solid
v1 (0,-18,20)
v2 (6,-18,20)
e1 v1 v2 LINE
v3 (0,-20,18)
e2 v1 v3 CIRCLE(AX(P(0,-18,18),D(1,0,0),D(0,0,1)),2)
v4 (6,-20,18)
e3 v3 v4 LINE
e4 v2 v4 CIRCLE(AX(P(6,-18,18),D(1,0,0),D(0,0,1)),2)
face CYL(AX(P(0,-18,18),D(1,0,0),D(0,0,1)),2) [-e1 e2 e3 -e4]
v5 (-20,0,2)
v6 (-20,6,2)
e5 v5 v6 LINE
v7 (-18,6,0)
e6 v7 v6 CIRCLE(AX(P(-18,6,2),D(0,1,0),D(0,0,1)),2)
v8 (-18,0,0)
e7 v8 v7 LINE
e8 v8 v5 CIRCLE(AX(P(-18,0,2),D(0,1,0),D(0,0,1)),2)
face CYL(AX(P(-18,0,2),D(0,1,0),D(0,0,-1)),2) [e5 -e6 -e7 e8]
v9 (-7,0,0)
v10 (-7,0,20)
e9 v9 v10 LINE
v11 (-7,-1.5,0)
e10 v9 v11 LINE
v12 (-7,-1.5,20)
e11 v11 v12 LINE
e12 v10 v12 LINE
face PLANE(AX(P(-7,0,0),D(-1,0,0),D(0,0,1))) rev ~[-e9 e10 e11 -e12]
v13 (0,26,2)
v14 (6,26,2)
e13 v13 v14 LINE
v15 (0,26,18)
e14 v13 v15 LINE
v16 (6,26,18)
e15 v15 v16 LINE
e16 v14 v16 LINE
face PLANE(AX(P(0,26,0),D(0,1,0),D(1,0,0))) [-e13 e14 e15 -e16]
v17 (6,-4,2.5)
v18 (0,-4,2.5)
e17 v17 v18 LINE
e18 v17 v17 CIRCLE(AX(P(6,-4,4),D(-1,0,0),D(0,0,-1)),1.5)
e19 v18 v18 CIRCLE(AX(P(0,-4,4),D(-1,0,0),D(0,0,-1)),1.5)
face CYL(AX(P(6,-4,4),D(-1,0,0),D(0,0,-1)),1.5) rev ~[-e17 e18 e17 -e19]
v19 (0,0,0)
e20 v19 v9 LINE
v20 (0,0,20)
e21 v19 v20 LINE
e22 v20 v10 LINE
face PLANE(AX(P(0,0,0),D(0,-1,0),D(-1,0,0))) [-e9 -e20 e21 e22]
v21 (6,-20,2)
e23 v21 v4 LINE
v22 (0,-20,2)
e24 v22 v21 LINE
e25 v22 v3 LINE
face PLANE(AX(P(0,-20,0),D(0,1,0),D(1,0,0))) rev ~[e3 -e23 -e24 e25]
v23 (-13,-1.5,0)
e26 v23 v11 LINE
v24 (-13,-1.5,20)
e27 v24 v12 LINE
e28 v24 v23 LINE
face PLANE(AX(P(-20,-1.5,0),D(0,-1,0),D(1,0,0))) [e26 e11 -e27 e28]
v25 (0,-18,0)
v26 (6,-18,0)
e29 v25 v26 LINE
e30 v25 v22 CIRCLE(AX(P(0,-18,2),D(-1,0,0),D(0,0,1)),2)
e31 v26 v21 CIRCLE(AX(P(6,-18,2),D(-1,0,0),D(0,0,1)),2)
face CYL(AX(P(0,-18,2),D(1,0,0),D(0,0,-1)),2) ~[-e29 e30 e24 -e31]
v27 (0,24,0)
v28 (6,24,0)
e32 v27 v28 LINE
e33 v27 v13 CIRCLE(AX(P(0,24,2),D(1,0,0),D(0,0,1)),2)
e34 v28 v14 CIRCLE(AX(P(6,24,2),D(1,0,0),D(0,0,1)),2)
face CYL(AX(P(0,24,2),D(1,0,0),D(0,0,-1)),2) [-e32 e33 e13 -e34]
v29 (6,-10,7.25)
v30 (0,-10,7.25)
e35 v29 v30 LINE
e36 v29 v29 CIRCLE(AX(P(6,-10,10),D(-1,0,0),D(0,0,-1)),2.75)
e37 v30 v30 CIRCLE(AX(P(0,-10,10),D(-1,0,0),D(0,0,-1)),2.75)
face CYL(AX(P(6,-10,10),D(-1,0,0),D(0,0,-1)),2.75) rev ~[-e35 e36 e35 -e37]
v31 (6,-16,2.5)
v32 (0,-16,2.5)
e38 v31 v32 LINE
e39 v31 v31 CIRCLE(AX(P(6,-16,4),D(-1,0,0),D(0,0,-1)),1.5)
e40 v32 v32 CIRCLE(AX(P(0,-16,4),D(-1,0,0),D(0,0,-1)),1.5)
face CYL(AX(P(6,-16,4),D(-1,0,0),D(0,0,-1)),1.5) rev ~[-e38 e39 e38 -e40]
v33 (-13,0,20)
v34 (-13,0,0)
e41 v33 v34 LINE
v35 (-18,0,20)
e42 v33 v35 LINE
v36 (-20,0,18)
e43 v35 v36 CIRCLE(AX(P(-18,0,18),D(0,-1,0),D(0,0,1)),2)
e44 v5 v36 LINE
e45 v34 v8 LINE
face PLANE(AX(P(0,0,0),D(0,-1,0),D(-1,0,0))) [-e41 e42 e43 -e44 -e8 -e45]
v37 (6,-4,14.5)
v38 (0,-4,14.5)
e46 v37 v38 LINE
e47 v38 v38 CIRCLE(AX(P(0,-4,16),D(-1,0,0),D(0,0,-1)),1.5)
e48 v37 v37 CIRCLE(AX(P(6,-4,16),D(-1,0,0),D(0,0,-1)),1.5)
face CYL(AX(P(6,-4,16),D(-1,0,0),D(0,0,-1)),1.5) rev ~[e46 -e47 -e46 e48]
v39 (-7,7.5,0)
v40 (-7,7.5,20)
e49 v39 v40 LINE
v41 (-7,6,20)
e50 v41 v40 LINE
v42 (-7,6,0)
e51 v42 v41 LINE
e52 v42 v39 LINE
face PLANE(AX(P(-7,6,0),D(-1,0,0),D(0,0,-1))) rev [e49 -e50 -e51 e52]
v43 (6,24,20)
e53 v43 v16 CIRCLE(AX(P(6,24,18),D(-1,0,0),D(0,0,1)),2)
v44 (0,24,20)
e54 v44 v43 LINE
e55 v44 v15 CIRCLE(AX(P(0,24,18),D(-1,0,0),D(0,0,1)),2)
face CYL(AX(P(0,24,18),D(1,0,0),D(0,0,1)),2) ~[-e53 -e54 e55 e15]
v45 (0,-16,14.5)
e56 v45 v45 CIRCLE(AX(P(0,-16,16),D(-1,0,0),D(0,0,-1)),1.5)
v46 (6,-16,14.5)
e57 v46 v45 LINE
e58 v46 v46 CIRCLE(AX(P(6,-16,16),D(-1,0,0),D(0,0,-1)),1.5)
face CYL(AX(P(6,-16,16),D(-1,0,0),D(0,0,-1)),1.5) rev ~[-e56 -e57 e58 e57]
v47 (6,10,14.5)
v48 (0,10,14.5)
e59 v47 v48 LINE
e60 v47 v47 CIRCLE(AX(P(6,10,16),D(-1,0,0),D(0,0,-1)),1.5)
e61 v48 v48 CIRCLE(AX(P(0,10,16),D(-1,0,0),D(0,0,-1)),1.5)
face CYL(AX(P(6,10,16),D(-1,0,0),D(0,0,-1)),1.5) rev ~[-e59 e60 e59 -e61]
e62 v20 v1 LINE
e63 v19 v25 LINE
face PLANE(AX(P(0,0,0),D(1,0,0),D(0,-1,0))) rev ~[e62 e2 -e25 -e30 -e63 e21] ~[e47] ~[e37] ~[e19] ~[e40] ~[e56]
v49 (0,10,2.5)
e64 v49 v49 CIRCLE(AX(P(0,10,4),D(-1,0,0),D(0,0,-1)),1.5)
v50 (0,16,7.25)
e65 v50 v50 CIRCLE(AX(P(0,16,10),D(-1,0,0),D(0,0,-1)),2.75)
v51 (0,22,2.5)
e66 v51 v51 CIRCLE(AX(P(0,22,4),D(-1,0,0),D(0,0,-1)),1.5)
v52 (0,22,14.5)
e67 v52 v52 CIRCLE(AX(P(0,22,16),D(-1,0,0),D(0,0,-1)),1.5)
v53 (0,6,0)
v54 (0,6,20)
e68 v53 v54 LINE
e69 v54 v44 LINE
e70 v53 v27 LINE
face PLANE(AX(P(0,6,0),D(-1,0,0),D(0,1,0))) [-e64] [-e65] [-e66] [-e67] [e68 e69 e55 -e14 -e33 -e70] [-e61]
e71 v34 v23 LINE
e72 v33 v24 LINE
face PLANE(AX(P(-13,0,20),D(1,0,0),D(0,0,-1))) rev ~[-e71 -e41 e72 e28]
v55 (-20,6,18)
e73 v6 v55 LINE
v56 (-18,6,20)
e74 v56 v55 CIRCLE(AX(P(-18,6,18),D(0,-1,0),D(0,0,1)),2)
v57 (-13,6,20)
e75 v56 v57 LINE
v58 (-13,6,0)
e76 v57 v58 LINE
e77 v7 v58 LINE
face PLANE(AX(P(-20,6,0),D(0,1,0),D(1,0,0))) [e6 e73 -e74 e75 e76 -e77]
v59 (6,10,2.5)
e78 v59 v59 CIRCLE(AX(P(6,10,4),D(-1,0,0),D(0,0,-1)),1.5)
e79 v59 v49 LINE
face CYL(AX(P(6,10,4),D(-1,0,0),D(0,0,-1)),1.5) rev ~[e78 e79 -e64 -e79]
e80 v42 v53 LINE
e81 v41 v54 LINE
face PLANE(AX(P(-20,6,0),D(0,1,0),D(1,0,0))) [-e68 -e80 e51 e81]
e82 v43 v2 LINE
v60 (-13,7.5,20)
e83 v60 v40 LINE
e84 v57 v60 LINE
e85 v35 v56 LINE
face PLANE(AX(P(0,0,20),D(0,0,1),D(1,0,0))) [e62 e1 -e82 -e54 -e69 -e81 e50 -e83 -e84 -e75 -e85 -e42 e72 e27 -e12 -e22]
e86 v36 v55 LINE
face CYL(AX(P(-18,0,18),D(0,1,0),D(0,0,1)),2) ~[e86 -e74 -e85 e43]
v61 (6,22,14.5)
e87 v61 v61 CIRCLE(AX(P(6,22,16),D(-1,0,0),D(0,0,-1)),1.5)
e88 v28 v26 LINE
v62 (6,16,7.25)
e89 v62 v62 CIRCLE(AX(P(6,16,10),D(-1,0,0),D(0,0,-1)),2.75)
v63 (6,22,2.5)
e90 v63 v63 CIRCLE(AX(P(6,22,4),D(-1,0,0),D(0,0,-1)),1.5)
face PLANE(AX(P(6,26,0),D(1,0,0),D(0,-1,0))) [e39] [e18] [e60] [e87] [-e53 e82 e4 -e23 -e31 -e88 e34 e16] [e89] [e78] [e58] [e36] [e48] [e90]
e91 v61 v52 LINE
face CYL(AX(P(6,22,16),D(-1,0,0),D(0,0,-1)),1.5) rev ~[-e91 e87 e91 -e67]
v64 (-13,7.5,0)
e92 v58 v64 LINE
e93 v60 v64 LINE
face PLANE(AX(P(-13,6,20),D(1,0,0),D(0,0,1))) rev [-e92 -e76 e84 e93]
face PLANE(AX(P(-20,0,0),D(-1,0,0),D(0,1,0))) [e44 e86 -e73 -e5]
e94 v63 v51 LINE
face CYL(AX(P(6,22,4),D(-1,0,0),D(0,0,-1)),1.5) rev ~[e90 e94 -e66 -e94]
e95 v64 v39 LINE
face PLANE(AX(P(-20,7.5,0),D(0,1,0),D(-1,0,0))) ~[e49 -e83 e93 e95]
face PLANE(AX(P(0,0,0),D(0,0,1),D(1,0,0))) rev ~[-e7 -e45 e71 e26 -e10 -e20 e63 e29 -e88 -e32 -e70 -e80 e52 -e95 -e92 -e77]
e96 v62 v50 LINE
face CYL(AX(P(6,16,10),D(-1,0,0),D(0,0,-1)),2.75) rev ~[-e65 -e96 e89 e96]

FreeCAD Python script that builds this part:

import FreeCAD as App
import Part
import Sketcher

V = App.Vector


def edges_at(feature, points):
    """Names of the edges that pass closest to the given points."""
    edges = feature.Shape.Edges
    near = lambda p: min(range(len(edges)), key=lambda i: edges[i].distToShape(Part.Vertex(*p))[0])
    return sorted({f"Edge{near(p) + 1}" for p in points})


def add_polygon(sketch, points):
    """Adds a closed chain of lines whose ends are joined by coincident constraints."""
    first, n = sketch.GeometryCount, len(points)
    for a, b in zip(points, points[1:] + points[:1]):
        sketch.addGeometry(Part.LineSegment(App.Vector(*a, 0), App.Vector(*b, 0)), False)
    for i in range(n):
        sketch.addConstraint(Sketcher.Constraint("Coincident", first + i, 2, first + (i + 1) % n, 1))

doc = App.newDocument("Part")
body = doc.addObject("PartDesign::Body", "Body")

sketch1 = body.newObject("Sketcher::SketchObject", "Sketch")
sketch1.AttachmentSupport = (doc.getObject("XY_Plane"), [""])
sketch1.MapMode = "FlatFace"
add_polygon(sketch1, [(-20, 0), (0, 0), (0, -20), (6, -20), (6, 26), (0, 26), (0, 6), (-20, 6)])
sketch1.addConstraint(Sketcher.Constraint("Horizontal", 0))
sketch1.addConstraint(Sketcher.Constraint("Vertical", 1))
sketch1.addConstraint(Sketcher.Constraint("Horizontal", 2))
sketch1.addConstraint(Sketcher.Constraint("Vertical", 3))
sketch1.addConstraint(Sketcher.Constraint("Horizontal", 4))
sketch1.addConstraint(Sketcher.Constraint("Vertical", 5))
sketch1.addConstraint(Sketcher.Constraint("Horizontal", 6))
sketch1.addConstraint(Sketcher.Constraint("Vertical", 7))
sketch1.addConstraint(Sketcher.Constraint("Coincident", 0, 2, -1, 1))
sketch1.addConstraint(Sketcher.Constraint("PointOnObject", 4, 2, -2))
sketch1.addConstraint(Sketcher.Constraint("Equal", 6, 1))
sketch1.addConstraint(Sketcher.Constraint("Equal", 1, 5))
sketch1.addConstraint(Sketcher.Constraint("Equal", 4, 7))
sketch1.addConstraint(Sketcher.Constraint("DistanceX", 0, 1, 0, 2, 20.0))
sketch1.addConstraint(Sketcher.Constraint("DistanceX", 2, 1, 2, 2, 6.0))
pad1 = body.newObject("PartDesign::Pad", "Pad")
pad1.Profile = sketch1
pad1.Length = 20

sketch2 = body.newObject("Sketcher::SketchObject", "Sketch001")
sketch2.AttachmentSupport = (doc.getObject("XZ_Plane"), [""])
sketch2.MapMode = "FlatFace"
add_polygon(sketch2, [(-7, 20), (-13, 20), (-13, 0), (-7, 0)])
sketch2.addConstraint(Sketcher.Constraint("Horizontal", 0))
sketch2.addConstraint(Sketcher.Constraint("Vertical", 1))
sketch2.addConstraint(Sketcher.Constraint("Horizontal", 2))
sketch2.addConstraint(Sketcher.Constraint("Vertical", 3))
sketch2.addConstraint(Sketcher.Constraint("PointOnObject", 1, 2, -1))
sketch2.addConstraint(Sketcher.Constraint("DistanceX", 0, 2, 0, 1, 6.0))
sketch2.addConstraint(Sketcher.Constraint("DistanceX", 2, 2, -1, 1, 7.0))
sketch2.addConstraint(Sketcher.Constraint("DistanceY", 1, 2, 1, 1, 20.0))
pad2 = body.newObject("PartDesign::Pad", "Pad001")
pad2.Profile = sketch2
pad2.Length = 1.5
doc.recompute()

datumplane = body.newObject("PartDesign::Plane", "DatumPlane")
datumplane.AttachmentSupport = (doc.getObject("XZ_Plane"), [""])
datumplane.MapMode = "FlatFace"
datumplane.AttachmentOffset = App.Placement(V(0, 0, -3), App.Rotation())
mirrored = body.newObject("PartDesign::Mirrored", "Mirrored")
mirrored.Originals = [pad2]
mirrored.MirrorPlane = (datumplane, [""])
body.Tip = mirrored

sketch3 = body.newObject("Sketcher::SketchObject", "Sketch002")
sketch3.AttachmentSupport = (doc.getObject("YZ_Plane"), [""])
sketch3.MapMode = "FlatFace"
sketch3.AttachmentOffset = App.Placement(V(0, 0, 6), App.Rotation())
sketch3.addGeometry(Part.Circle(V(-10, 10, 0), V(0, 0, 1), 2.8), False)
sketch3.addGeometry(Part.Circle(V(16, 10, 0), V(0, 0, 1), 2.8), False)
sketch3.addConstraint(Sketcher.Constraint("Equal", 0, 1))
sketch3.addConstraint(Sketcher.Constraint("Horizontal", 0, 3, 1, 3))
sketch3.addConstraint(Sketcher.Constraint("Diameter", 0, 5.5))
sketch3.addConstraint(Sketcher.Constraint("DistanceX", 0, 3, -1, 1, 10.0))
sketch3.addConstraint(Sketcher.Constraint("DistanceY", -1, 1, 0, 3, 10.0))
sketch3.addConstraint(Sketcher.Constraint("DistanceX", -1, 1, 1, 3, 16.0))
doc.recompute()
hole = body.newObject("PartDesign::Hole", "Hole")
hole.Profile = sketch3
hole.ThreadType = "None"
hole.Diameter = 5.5
hole.DepthType = "ThroughAll"

sketch4 = body.newObject("Sketcher::SketchObject", "Sketch003")
sketch4.AttachmentSupport = (doc.getObject("YZ_Plane"), [""])
sketch4.MapMode = "FlatFace"
sketch4.AttachmentOffset = App.Placement(V(0, 0, 6), App.Rotation())
sketch4.addGeometry(Part.Circle(V(-16, 16, 0), V(0, 0, 1), 1.5), False)
sketch4.addGeometry(Part.Circle(V(-4, 16, 0), V(0, 0, 1), 1.5), False)
sketch4.addGeometry(Part.Circle(V(-16, 4, 0), V(0, 0, 1), 1.5), False)
sketch4.addGeometry(Part.Circle(V(-4, 4, 0), V(0, 0, 1), 1.5), False)
sketch4.addGeometry(Part.Circle(V(22, 16, 0), V(0, 0, 1), 1.5), False)
sketch4.addGeometry(Part.Circle(V(10, 16, 0), V(0, 0, 1), 1.5), False)
sketch4.addGeometry(Part.Circle(V(10, 4, 0), V(0, 0, 1), 1.5), False)
sketch4.addGeometry(Part.Circle(V(22, 4, 0), V(0, 0, 1), 1.5), False)
sketch4.addConstraint(Sketcher.Constraint("Equal", 0, 1))
sketch4.addConstraint(Sketcher.Constraint("Equal", 1, 2))
sketch4.addConstraint(Sketcher.Constraint("Equal", 2, 3))
sketch4.addConstraint(Sketcher.Constraint("Equal", 3, 4))
sketch4.addConstraint(Sketcher.Constraint("Equal", 4, 5))
sketch4.addConstraint(Sketcher.Constraint("Equal", 5, 6))
sketch4.addConstraint(Sketcher.Constraint("Equal", 6, 7))
sketch4.addConstraint(Sketcher.Constraint("Horizontal", 0, 3, 1, 3))
sketch4.addConstraint(Sketcher.Constraint("Horizontal", 2, 3, 3, 3))
sketch4.addConstraint(Sketcher.Constraint("Horizontal", 1, 3, 4, 3))
sketch4.addConstraint(Sketcher.Constraint("Horizontal", 4, 3, 5, 3))
sketch4.addConstraint(Sketcher.Constraint("Horizontal", 3, 3, 6, 3))
sketch4.addConstraint(Sketcher.Constraint("Horizontal", 6, 3, 7, 3))
sketch4.addConstraint(Sketcher.Constraint("Vertical", 0, 3, 2, 3))
sketch4.addConstraint(Sketcher.Constraint("Vertical", 1, 3, 3, 3))
sketch4.addConstraint(Sketcher.Constraint("Vertical", 5, 3, 6, 3))
sketch4.addConstraint(Sketcher.Constraint("Vertical", 4, 3, 7, 3))
sketch4.addConstraint(Sketcher.Constraint("Diameter", 0, 3.0))
sketch4.addConstraint(Sketcher.Constraint("DistanceX", 0, 3, -1, 1, 16.0))
sketch4.addConstraint(Sketcher.Constraint("DistanceY", -1, 1, 0, 3, 16.0))
sketch4.addConstraint(Sketcher.Constraint("DistanceX", 1, 3, -1, 1, 4.0))
sketch4.addConstraint(Sketcher.Constraint("DistanceY", -1, 1, 2, 3, 4.0))
sketch4.addConstraint(Sketcher.Constraint("DistanceX", -1, 1, 4, 3, 22.0))
sketch4.addConstraint(Sketcher.Constraint("DistanceX", -1, 1, 5, 3, 10.0))
doc.recompute()
hole2 = body.newObject("PartDesign::Hole", "Hole001")
hole2.Profile = sketch4
hole2.ThreadType = "None"
hole2.Diameter = 3
hole2.DepthType = "ThroughAll"
doc.recompute()

fillet = body.newObject("PartDesign::Fillet", "Fillet")
fillet.Base = (hole2, edges_at(hole2, [
    (3, -20, 20),
    (3, 26, 20),
    (3, 26, 0),
    (3, -20, 0),
    (-20, 3, 20),
    (-20, 3, 0),
]))
fillet.Radius = 2

doc.recompute()
